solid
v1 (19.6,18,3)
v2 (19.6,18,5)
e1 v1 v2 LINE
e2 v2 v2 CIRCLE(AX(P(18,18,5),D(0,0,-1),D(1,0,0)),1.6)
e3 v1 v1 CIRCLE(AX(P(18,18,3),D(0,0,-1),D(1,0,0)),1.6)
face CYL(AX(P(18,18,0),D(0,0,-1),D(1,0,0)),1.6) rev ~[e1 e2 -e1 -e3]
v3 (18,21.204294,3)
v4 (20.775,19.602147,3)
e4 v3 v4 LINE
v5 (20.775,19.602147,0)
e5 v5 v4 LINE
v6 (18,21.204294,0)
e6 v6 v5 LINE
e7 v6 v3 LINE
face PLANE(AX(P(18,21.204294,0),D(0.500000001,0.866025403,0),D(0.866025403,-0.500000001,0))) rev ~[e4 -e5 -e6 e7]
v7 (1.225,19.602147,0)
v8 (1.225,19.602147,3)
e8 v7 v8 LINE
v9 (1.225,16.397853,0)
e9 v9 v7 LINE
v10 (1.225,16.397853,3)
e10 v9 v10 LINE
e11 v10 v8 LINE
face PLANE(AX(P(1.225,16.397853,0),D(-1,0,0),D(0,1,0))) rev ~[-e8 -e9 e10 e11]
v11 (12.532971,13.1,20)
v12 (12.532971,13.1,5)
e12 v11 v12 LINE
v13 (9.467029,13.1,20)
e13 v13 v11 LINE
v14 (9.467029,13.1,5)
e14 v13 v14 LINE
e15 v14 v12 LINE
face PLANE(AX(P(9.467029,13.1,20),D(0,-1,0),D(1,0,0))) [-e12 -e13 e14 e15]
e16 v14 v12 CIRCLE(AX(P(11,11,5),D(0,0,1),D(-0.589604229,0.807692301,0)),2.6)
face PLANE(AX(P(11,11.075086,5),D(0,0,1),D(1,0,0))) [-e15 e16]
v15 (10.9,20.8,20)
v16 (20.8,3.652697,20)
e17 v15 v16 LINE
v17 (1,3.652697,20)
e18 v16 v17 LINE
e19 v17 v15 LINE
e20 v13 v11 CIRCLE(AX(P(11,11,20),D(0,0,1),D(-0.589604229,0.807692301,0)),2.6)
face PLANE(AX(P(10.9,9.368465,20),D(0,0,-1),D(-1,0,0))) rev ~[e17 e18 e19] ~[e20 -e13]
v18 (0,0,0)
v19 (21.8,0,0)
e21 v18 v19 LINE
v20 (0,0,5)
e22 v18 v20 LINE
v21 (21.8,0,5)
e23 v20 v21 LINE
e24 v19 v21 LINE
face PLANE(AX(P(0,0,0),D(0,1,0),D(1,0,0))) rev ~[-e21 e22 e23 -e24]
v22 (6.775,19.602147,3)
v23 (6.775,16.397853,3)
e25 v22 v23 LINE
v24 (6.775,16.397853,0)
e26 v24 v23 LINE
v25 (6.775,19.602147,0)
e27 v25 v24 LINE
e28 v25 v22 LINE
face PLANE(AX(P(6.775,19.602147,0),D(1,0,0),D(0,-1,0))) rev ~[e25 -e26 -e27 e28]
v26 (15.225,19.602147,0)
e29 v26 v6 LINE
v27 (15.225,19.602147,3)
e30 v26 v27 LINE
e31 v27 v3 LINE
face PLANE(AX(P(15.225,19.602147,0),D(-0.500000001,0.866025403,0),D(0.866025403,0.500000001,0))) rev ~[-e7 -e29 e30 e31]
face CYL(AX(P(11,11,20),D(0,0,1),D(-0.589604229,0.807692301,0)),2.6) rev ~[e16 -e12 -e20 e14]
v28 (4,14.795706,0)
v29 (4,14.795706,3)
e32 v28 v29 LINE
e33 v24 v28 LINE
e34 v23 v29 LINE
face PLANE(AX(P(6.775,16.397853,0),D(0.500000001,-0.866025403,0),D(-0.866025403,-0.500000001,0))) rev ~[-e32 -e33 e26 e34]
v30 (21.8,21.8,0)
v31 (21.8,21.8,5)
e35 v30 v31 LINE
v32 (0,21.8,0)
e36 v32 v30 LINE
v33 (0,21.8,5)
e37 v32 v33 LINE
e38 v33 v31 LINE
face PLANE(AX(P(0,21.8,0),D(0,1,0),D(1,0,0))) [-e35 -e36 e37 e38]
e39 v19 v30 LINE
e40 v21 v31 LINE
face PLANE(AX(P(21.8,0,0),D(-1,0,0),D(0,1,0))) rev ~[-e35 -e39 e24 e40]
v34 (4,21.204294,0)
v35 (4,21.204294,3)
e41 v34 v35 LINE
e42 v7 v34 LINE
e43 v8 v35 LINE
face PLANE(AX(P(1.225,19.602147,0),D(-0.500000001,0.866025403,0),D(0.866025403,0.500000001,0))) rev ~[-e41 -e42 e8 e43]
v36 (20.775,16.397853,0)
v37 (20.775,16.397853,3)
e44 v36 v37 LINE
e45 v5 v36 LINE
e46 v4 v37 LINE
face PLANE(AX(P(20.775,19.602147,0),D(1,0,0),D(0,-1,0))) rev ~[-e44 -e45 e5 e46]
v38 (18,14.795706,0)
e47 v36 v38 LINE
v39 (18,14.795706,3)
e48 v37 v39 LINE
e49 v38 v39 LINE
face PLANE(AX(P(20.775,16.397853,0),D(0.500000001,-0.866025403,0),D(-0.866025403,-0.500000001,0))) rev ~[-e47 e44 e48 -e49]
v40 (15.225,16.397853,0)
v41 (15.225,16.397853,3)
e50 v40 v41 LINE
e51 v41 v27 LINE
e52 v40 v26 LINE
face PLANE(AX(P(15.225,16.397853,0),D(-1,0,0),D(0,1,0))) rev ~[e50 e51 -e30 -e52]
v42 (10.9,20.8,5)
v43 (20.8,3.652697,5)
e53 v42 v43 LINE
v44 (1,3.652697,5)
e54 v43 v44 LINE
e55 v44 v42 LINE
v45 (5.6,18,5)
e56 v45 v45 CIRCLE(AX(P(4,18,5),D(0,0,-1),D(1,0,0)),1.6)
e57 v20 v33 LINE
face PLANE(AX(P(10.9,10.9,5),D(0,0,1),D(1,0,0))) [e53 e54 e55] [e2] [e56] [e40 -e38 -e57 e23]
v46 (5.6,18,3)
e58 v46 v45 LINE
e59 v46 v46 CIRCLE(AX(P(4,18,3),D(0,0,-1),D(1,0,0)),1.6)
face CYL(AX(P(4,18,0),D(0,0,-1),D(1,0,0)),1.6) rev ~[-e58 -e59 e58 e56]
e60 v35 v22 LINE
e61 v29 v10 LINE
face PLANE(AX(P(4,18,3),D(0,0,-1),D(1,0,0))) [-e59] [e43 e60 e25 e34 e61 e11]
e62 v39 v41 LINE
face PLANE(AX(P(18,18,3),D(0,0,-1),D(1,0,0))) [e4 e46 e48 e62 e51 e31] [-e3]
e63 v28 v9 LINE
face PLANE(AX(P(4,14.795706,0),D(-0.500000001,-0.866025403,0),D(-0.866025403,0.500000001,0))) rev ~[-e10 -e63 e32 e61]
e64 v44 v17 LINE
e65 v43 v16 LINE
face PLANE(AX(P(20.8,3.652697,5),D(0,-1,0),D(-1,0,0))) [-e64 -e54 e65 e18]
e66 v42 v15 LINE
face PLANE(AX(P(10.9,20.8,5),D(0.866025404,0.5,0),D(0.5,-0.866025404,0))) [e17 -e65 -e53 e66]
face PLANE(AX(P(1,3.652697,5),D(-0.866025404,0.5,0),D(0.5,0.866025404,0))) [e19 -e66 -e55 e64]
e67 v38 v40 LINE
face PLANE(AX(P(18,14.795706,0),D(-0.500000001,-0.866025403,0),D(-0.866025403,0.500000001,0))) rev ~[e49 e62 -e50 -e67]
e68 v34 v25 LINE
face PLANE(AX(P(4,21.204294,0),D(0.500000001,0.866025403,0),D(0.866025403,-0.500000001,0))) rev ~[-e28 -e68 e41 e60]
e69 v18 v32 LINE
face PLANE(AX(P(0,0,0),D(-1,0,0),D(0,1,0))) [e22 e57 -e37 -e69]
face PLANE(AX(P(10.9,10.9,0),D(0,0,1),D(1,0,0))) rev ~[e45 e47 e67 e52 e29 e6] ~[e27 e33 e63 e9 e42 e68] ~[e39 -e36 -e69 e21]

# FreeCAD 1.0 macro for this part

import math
import FreeCAD as App
import Part
import Sketcher

V = App.Vector
Q = App.Units.Quantity

doc = App.newDocument("Part")
body = doc.addObject("PartDesign::Body", "Body")

# Sketch on XY plane
sketch1 = body.newObject("Sketcher::SketchObject", "Sketch")
sketch1.AttachmentSupport = (doc.getObject("XY_Plane"), [""])
sketch1.MapMode = "FlatFace"
sketch1.addGeometry([
    Part.LineSegment(V(0, 22, 0), V(0, 0, 0)),
    Part.LineSegment(V(0, 0, 0), V(22, 0, 0)),
    Part.LineSegment(V(22, 0, 0), V(22, 22, 0)),
    Part.LineSegment(V(22, 22, 0), V(0, 22, 0)),
], False)
sketch1.addConstraint([
    Sketcher.Constraint("Coincident", 0, 2, 1, 1),
    Sketcher.Constraint("Coincident", 1, 2, 2, 1),
    Sketcher.Constraint("Coincident", 2, 2, 3, 1),
    Sketcher.Constraint("Coincident", 3, 2, 0, 1),
    Sketcher.Constraint("Vertical", 0),
    Sketcher.Constraint("Horizontal", 1),
    Sketcher.Constraint("Vertical", 2),
    Sketcher.Constraint("Horizontal", 3),
    Sketcher.Constraint("Coincident", 0, 2, -1, 1),
    Sketcher.Constraint("Equal", 3, 0),
    Sketcher.Constraint("DistanceX", 1, 1, 1, 2, Q("21.8 mm")),
])
pad1 = body.newObject("PartDesign::Pad", "Pad")
pad1.Profile = sketch1
pad1.Length = 5

# Sketch on XY plane
sketch2 = body.newObject("Sketcher::SketchObject", "Sketch001")
sketch2.AttachmentSupport = (doc.getObject("XY_Plane"), [""])
sketch2.MapMode = "FlatFace"
sketch2.AttachmentOffset = App.Placement(V(0, 0, 5), App.Rotation())
sketch2.addGeometry([
    Part.LineSegment(V(11, 21, 0), V(1, 4, 0)),
    Part.LineSegment(V(1, 4, 0), V(21, 4, 0)),
    Part.LineSegment(V(21, 4, 0), V(11, 21, 0)),
], False)
sketch2.addConstraint([
    Sketcher.Constraint("Coincident", 0, 2, 1, 1),
    Sketcher.Constraint("Coincident", 1, 2, 2, 1),
    Sketcher.Constraint("Coincident", 2, 2, 0, 1),
    Sketcher.Constraint("Horizontal", 1),
    Sketcher.Constraint("Equal", 0, 2),
    Sketcher.Constraint("Angle", 0, Q("-120 deg")),
    Sketcher.Constraint("DistanceX", 1, 1, 1, 2, Q("19.8 mm")),
    Sketcher.Constraint("DistanceX", -1, 1, 0, 2, Q("1 mm")),
    Sketcher.Constraint("DistanceY", -1, 1, 2, 2, Q("20.8 mm")),
])
pad2 = body.newObject("PartDesign::Pad", "Pad001")
pad2.Profile = sketch2
pad2.Length = 15

# Sketch on XY plane
sketch3 = body.newObject("Sketcher::SketchObject", "Sketch002")
sketch3.AttachmentSupport = (doc.getObject("XY_Plane"), [""])
sketch3.MapMode = "FlatFace"
sketch3.addGeometry([
    Part.Circle(V(4, 18, 0), V(0, 0, 1), 1.6),
    Part.Circle(V(18, 18, 0), V(0, 0, 1), 1.6),
], False)
sketch3.addConstraint([
    Sketcher.Constraint("Equal", 0, 1),
    Sketcher.Constraint("Horizontal", 0, 3, 1, 3),
    Sketcher.Constraint("Diameter", 0, Q("3.2 mm")),
    Sketcher.Constraint("DistanceX", -1, 1, 0, 3, Q("4 mm")),
    Sketcher.Constraint("DistanceY", -1, 1, 0, 3, Q("18 mm")),
    Sketcher.Constraint("DistanceX", -1, 1, 1, 3, Q("18 mm")),
])
pocket1 = body.newObject("PartDesign::Pocket", "Pocket")
pocket1.Profile = sketch3
pocket1.Type = "ThroughAll"
pocket1.Reversed = True

# Sketch on XY plane
sketch4 = body.newObject("Sketcher::SketchObject", "Sketch003")
sketch4.AttachmentSupport = (doc.getObject("XY_Plane"), [""])
sketch4.MapMode = "FlatFace"
sketch4.addGeometry([
    Part.LineSegment(V(6.8, 19.6, 0), V(6.8, 16.4, 0)),  # 0
    Part.LineSegment(V(6.8, 16.4, 0), V(4, 14.8, 0)),  # 1
    Part.LineSegment(V(4, 14.8, 0), V(1.2, 16.4, 0)),  # 2
    Part.LineSegment(V(1.2, 16.4, 0), V(1.2, 19.6, 0)),  # 3
    Part.LineSegment(V(1.2, 19.6, 0), V(4, 21.2, 0)),  # 4
    Part.LineSegment(V(4, 21.2, 0), V(6.8, 19.6, 0)),  # 5
    Part.LineSegment(V(20.8, 19.6, 0), V(20.8, 16.4, 0)),  # 6
    Part.LineSegment(V(20.8, 16.4, 0), V(18, 14.8, 0)),  # 7
    Part.LineSegment(V(18, 14.8, 0), V(15.2, 16.4, 0)),  # 8
    Part.LineSegment(V(15.2, 16.4, 0), V(15.2, 19.6, 0)),  # 9
    Part.LineSegment(V(15.2, 19.6, 0), V(18, 21.2, 0)),  # 10
    Part.LineSegment(V(18, 21.2, 0), V(20.8, 19.6, 0)),  # 11
], False)
sketch4.addConstraint([
    Sketcher.Constraint("Coincident", 0, 2, 1, 1),
    Sketcher.Constraint("Coincident", 1, 2, 2, 1),
    Sketcher.Constraint("Coincident", 2, 2, 3, 1),
    Sketcher.Constraint("Coincident", 3, 2, 4, 1),
    Sketcher.Constraint("Coincident", 4, 2, 5, 1),
    Sketcher.Constraint("Coincident", 5, 2, 0, 1),
    Sketcher.Constraint("Coincident", 6, 2, 7, 1),
    Sketcher.Constraint("Coincident", 7, 2, 8, 1),
    Sketcher.Constraint("Coincident", 8, 2, 9, 1),
    Sketcher.Constraint("Coincident", 9, 2, 10, 1),
    Sketcher.Constraint("Coincident", 10, 2, 11, 1),
    Sketcher.Constraint("Coincident", 11, 2, 6, 1),
    Sketcher.Constraint("Vertical", 0),
    Sketcher.Constraint("Vertical", 3),
    Sketcher.Constraint("Vertical", 6),
    Sketcher.Constraint("Vertical", 9),
    Sketcher.Constraint("Parallel", 1, 4),
    Sketcher.Constraint("Parallel", 2, 5),
    Sketcher.Constraint("Parallel", 4, 7),
    Sketcher.Constraint("Parallel", 5, 8),
    Sketcher.Constraint("Parallel", 7, 10),
    Sketcher.Constraint("Parallel", 8, 11),
    Sketcher.Constraint("Horizontal", 0, 2, 2, 2),
    Sketcher.Constraint("Horizontal", 3, 2, 5, 2),
    Sketcher.Constraint("Horizontal", 2, 2, 6, 2),
    Sketcher.Constraint("Horizontal", 1, 2, 7, 2),
    Sketcher.Constraint("Horizontal", 6, 2, 8, 2),
    Sketcher.Constraint("Horizontal", 5, 2, 9, 2),
    Sketcher.Constraint("Horizontal", 4, 2, 10, 2),
    Sketcher.Constraint("Vertical", 1, 2, 4, 2),
    Sketcher.Constraint("Angle", 1, Q("-150 deg")),
    Sketcher.Constraint("DistanceX", -1, 1, 1, 2, Q("4 mm")),
    Sketcher.Constraint("DistanceX", -1, 1, 7, 2, Q("18 mm")),
    Sketcher.Constraint("DistanceX", 2, 2, 0, 2, Q("5.55 mm")),
    Sketcher.Constraint("DistanceY", 0, 2, 0, 1, Q("3.204294 mm")),
    Sketcher.Constraint("DistanceY", -1, 1, 0, 2, Q("16.397853 mm")),
])
pocket2 = body.newObject("PartDesign::Pocket", "Pocket001")
pocket2.Profile = sketch4
pocket2.Length = 3
pocket2.Reversed = True

# Sketch on XY plane
sketch5 = body.newObject("Sketcher::SketchObject", "Sketch004")
sketch5.AttachmentSupport = (doc.getObject("XY_Plane"), [""])
sketch5.MapMode = "FlatFace"
sketch5.AttachmentOffset = App.Placement(V(0, 0, 20), App.Rotation())
sketch5.addGeometry([
    Part.ArcOfCircle(Part.Circle(V(11, 11, 0), V(0, 0, 1), 2.6), math.radians(126), math.radians(414)),
    Part.LineSegment(V(12.5, 13.1, 0), V(9.5, 13.1, 0)),
], False)
sketch5.addConstraint([
    Sketcher.Constraint("Coincident", 0, 1, 1, 2),
    Sketcher.Constraint("Coincident", 1, 1, 0, 2),
    Sketcher.Constraint("Horizontal", 1),
    Sketcher.Constraint("Radius", 0, Q("2.6 mm")),
    Sketcher.Constraint("DistanceX", -1, 1, 0, 3, Q("11 mm")),
    Sketcher.Constraint("DistanceY", -1, 1, 0, 3, Q("11 mm")),
    Sketcher.Constraint("DistanceY", -1, 1, 0, 1, Q("13.1 mm")),
])
pocket3 = body.newObject("PartDesign::Pocket", "Pocket002")
pocket3.Profile = sketch5
pocket3.Length = 15

doc.recompute()
